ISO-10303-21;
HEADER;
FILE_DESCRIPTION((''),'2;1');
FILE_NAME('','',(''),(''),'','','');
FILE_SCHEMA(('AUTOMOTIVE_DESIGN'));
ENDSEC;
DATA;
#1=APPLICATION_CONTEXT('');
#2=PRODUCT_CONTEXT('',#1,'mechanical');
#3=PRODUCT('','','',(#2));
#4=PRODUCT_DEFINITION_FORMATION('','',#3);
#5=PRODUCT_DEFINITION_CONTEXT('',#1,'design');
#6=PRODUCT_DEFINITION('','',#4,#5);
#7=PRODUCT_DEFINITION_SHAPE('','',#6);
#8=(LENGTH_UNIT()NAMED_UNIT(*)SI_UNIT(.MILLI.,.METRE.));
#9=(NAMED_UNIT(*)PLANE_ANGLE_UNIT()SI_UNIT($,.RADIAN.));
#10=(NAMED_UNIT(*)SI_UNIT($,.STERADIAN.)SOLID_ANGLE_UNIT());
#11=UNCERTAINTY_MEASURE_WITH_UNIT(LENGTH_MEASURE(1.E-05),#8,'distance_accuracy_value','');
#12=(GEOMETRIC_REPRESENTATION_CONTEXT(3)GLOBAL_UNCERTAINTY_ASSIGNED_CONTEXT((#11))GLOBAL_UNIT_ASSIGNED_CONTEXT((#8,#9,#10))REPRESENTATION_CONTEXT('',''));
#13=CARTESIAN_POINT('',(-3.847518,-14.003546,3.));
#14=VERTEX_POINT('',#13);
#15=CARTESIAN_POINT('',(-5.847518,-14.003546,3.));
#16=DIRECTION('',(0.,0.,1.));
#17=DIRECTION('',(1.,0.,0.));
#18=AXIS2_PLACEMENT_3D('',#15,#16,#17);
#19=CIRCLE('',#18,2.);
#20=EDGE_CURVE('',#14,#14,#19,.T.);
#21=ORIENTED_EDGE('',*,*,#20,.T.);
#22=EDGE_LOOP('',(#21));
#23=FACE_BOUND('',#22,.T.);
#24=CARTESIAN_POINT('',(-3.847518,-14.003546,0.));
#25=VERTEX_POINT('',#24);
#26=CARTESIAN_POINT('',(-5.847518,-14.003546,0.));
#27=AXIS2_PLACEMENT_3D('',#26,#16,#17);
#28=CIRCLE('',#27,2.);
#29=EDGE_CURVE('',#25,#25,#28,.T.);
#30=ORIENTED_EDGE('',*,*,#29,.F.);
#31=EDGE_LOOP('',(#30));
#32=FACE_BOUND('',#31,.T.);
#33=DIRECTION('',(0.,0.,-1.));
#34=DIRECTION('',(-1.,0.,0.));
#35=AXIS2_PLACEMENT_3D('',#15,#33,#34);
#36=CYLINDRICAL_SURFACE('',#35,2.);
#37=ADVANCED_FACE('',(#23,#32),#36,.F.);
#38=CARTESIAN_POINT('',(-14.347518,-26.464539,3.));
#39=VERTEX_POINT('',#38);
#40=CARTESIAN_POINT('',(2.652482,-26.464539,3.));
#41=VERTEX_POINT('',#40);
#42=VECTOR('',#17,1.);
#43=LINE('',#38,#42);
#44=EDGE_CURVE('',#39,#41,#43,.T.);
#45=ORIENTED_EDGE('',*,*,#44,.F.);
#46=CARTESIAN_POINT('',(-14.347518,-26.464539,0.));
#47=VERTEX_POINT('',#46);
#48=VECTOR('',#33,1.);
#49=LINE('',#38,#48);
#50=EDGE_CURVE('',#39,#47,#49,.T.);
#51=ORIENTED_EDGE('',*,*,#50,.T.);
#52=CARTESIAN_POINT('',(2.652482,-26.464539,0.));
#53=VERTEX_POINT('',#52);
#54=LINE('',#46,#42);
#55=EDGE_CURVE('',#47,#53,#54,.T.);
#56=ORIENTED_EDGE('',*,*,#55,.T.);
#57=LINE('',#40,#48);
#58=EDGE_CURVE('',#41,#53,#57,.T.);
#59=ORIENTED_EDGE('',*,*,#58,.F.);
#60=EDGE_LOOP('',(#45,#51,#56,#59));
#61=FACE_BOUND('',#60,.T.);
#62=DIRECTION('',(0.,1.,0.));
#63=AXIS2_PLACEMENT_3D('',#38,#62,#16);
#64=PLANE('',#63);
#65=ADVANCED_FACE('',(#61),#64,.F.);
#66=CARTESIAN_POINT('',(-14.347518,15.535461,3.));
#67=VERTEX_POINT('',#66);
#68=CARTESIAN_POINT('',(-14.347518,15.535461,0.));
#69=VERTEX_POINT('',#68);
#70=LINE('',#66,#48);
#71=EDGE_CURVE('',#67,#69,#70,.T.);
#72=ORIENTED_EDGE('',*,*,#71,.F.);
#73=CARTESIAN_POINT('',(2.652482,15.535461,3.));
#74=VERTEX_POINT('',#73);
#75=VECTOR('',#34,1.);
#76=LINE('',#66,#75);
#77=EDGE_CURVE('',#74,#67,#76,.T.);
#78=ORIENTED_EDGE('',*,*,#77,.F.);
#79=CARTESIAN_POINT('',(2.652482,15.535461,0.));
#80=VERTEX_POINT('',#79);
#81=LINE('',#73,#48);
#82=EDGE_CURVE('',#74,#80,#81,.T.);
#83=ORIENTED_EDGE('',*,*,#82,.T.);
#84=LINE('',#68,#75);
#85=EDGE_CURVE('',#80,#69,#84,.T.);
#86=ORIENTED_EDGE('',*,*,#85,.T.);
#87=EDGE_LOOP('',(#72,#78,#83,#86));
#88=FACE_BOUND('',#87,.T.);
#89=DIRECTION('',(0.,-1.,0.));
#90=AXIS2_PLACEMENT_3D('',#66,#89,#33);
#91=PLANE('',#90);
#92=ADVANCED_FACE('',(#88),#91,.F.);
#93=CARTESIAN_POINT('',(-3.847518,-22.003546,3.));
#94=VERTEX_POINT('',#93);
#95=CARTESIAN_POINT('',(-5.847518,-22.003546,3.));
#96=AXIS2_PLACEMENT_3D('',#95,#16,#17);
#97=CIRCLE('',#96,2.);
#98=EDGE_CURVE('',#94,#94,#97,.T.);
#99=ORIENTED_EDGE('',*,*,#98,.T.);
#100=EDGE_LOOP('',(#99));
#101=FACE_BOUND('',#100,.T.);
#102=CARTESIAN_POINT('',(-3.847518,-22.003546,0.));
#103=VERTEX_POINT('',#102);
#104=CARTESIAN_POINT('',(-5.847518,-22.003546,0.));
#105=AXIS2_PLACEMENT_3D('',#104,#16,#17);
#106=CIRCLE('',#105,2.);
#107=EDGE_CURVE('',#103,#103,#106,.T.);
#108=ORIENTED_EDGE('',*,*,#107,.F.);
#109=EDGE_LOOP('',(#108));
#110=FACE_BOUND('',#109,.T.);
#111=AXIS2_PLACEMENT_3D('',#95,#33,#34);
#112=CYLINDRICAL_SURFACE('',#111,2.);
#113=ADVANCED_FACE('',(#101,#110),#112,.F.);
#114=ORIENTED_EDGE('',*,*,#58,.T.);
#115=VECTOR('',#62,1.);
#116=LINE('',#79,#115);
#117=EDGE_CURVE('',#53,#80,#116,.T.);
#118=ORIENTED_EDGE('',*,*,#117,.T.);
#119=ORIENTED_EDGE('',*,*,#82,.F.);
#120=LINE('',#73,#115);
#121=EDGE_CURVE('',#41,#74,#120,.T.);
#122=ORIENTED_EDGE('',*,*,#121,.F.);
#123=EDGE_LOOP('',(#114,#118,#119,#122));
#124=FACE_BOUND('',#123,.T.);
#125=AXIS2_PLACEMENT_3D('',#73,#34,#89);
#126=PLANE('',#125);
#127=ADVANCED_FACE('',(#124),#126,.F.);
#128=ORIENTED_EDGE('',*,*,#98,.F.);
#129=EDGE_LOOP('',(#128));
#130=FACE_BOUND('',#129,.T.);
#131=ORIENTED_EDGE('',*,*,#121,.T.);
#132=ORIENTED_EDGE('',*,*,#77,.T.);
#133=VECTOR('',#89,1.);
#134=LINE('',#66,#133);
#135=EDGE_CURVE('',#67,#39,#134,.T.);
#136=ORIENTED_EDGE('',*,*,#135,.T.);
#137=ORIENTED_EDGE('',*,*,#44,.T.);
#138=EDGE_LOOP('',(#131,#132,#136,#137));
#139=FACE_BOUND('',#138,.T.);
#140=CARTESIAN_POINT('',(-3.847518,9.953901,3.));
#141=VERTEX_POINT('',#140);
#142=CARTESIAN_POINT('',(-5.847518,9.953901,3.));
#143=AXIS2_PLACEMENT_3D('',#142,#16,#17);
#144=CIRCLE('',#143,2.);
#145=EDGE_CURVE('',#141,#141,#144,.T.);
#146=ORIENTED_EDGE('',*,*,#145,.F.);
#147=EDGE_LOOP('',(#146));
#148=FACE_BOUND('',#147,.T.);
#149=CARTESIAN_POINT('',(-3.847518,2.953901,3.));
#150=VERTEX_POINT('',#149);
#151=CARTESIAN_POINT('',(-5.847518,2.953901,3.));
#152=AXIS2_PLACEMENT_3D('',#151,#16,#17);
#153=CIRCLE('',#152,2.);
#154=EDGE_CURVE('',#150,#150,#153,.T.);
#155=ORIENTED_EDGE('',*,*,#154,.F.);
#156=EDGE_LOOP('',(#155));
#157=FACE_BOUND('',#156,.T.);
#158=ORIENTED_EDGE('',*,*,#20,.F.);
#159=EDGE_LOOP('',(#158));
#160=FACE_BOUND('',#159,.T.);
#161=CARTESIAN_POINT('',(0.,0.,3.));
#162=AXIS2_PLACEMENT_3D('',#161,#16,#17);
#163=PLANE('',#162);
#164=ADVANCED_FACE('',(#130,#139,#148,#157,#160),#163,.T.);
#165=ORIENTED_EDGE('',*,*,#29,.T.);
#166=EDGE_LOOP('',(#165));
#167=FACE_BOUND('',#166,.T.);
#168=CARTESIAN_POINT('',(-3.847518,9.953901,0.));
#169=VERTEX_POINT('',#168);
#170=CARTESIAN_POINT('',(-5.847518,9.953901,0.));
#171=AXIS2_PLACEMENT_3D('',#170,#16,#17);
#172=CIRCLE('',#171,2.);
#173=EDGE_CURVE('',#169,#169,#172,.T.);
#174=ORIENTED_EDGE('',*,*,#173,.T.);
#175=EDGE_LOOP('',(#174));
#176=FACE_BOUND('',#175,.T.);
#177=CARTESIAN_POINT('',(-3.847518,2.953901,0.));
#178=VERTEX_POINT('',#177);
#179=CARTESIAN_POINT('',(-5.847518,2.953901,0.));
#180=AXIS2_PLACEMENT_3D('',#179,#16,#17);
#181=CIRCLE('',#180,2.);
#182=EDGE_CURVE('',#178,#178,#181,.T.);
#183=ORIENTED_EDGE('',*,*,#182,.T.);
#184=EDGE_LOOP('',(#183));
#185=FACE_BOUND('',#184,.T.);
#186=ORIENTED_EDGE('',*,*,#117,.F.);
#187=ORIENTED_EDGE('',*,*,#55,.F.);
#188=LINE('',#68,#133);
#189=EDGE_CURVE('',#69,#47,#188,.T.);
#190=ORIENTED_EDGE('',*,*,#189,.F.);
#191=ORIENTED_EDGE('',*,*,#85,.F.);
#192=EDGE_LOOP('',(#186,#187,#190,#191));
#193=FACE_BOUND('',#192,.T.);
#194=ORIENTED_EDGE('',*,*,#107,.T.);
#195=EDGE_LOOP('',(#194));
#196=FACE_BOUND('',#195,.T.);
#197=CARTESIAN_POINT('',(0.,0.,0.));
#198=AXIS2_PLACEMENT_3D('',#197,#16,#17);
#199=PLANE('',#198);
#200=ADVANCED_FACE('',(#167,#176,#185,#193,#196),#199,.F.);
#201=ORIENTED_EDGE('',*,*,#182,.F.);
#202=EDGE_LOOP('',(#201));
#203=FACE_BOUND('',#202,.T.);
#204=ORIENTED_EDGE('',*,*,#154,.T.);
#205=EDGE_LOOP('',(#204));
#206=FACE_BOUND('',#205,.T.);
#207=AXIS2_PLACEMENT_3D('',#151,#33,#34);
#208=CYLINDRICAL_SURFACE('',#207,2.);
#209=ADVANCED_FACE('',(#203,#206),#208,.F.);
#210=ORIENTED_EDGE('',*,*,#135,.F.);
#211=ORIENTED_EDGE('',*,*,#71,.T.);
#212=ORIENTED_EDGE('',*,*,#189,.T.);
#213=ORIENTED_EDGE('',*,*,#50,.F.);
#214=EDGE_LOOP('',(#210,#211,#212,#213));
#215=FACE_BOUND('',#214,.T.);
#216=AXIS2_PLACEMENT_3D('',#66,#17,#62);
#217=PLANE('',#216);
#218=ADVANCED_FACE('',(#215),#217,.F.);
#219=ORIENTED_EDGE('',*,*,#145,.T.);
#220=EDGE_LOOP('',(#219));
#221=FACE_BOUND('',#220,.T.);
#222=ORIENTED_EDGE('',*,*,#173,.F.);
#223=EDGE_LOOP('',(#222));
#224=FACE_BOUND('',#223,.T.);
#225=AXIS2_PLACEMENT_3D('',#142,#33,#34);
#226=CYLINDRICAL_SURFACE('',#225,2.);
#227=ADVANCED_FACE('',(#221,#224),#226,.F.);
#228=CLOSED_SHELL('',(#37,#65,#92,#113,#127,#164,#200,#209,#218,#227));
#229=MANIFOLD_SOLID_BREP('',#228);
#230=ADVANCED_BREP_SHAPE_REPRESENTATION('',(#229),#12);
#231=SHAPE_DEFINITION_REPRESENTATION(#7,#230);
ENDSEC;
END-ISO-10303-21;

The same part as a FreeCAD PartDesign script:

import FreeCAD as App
import Part
import Sketcher
Q = App.Units.Quantity


def add_polygon(sketch, points):
    """Adds a closed chain of lines whose ends are joined by coincident constraints."""
    first, n = sketch.GeometryCount, len(points)
    for a, b in zip(points, points[1:] + points[:1]):
        sketch.addGeometry(Part.LineSegment(App.Vector(*a, 0), App.Vector(*b, 0)), False)
    for i in range(n):
        sketch.addConstraint(Sketcher.Constraint("Coincident", first + i, 2, first + (i + 1) % n, 1))

doc = App.newDocument("Part")
body = doc.addObject("PartDesign::Body", "Body")

# Sketch on XY plane
sketch1 = body.newObject("Sketcher::SketchObject", "Sketch")
sketch1.AttachmentSupport = (doc.getObject("XY_Plane"), [""])
sketch1.MapMode = "FlatFace"
add_polygon(sketch1, [(-14.347518, 15.535461), (-14.347518, -26.464539), (2.652482, -26.464539), (2.652482, 15.535461)])  # lines 0-3
sketch1.addGeometry(Part.Circle(App.Vector(-5.847518, -22.003546, 0), App.Vector(0, 0, 1), 2), False)  # 4
sketch1.addGeometry(Part.Circle(App.Vector(-5.847518, -14.003546, 0), App.Vector(0, 0, 1), 2), False)  # 5
sketch1.addGeometry(Part.Circle(App.Vector(-5.847518, 2.953901, 0), App.Vector(0, 0, 1), 2), False)  # 6
sketch1.addGeometry(Part.Circle(App.Vector(-5.847518, 9.953901, 0), App.Vector(0, 0, 1), 2), False)  # 7
sketch1.addConstraint([
    Sketcher.Constraint("Vertical", 0),
    Sketcher.Constraint("Horizontal", 1),
    Sketcher.Constraint("Vertical", 2),
    Sketcher.Constraint("Horizontal", 3),
    Sketcher.Constraint("Equal", 4, 5),
    Sketcher.Constraint("Equal", 5, 6),
    Sketcher.Constraint("Equal", 6, 7),
    Sketcher.Constraint("Vertical", 4, 3, 5, 3),
    Sketcher.Constraint("Vertical", 5, 3, 6, 3),
    Sketcher.Constraint("Vertical", 6, 3, 7, 3),
    Sketcher.Constraint("Diameter", 4, Q("4 mm")),
    Sketcher.Constraint("DistanceX", 1, 1, 1, 2, Q("17 mm")),
    Sketcher.Constraint("DistanceY", 0, 2, 0, 1, Q("42 mm")),
    Sketcher.Constraint("DistanceY", 4, 3, 5, 3, Q("8 mm")),
    Sketcher.Constraint("DistanceY", 6, 3, 7, 3, Q("7 mm")),
    Sketcher.Constraint("DistanceX", 0, 2, 4, 3, Q("8.5 mm")),
    Sketcher.Constraint("DistanceY", -1, 1, 6, 3, Q("2.953901 mm")),
    Sketcher.Constraint("DistanceY", 0, 2, -1, 1, Q("26.464539 mm")),
    Sketcher.Constraint("DistanceX", 4, 3, -1, 1, Q("5.847518 mm")),
    Sketcher.Constraint("DistanceY", 4, 3, -1, 1, Q("22.003546 mm")),
])
pad1 = body.newObject("PartDesign::Pad", "Pad")
pad1.Profile = sketch1
pad1.Length = 3

doc.recompute()
